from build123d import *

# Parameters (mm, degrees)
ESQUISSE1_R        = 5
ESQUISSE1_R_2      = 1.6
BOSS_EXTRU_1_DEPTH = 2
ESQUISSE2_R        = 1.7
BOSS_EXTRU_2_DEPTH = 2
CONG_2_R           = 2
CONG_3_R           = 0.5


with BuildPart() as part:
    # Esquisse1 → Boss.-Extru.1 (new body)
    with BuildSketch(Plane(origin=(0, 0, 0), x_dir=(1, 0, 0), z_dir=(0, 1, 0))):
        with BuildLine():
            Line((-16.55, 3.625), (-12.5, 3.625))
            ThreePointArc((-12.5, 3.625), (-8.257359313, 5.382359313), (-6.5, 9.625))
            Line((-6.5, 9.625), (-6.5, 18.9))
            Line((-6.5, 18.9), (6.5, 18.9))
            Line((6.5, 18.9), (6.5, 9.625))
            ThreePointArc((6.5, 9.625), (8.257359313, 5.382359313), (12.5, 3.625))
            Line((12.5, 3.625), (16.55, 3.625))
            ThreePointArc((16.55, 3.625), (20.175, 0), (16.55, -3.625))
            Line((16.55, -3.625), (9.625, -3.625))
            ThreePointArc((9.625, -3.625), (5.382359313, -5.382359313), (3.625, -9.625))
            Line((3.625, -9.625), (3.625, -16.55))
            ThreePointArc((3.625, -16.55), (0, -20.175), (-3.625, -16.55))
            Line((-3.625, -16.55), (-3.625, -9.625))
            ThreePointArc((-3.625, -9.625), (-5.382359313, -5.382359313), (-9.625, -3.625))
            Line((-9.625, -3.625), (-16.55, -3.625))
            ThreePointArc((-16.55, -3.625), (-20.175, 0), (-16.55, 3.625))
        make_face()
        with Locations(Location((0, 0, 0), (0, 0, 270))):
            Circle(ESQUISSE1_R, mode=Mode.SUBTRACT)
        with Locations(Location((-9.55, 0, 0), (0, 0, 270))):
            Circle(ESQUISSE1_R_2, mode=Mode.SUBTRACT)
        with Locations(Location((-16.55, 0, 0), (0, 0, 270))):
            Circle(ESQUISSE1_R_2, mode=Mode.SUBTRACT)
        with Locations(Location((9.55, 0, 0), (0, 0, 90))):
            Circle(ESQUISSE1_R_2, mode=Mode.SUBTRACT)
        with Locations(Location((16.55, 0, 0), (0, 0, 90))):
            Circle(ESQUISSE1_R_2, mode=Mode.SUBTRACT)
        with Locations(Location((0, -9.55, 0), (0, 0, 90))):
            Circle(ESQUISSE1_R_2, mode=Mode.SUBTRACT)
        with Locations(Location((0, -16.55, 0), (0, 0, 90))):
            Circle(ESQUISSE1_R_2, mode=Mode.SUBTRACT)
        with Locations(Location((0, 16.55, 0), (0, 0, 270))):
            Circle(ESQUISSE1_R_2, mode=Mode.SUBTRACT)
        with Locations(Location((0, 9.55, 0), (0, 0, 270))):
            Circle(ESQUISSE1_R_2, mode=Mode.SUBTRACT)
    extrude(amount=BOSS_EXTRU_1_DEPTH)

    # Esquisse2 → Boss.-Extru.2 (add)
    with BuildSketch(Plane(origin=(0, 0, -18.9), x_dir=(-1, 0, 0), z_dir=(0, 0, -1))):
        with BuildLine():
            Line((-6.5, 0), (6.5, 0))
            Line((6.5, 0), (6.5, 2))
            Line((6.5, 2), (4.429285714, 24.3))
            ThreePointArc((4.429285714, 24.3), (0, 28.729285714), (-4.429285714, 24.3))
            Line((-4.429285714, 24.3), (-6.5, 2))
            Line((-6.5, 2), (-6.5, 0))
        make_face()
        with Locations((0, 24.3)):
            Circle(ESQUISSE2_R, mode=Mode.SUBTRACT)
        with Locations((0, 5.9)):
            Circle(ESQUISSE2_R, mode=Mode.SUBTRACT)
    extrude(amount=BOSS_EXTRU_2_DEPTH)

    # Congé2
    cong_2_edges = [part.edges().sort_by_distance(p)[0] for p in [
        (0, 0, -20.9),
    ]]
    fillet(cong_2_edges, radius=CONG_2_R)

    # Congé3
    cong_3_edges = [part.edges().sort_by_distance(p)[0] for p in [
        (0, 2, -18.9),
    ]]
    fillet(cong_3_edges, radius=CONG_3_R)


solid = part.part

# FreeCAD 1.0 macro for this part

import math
import FreeCAD as App
import Part
import Sketcher
from FreeCAD import Vector
Q = App.Units.Quantity


def edges_at(feature, points):
    """Names of the edges that pass closest to the given points."""
    edges = feature.Shape.Edges
    near = lambda p: min(range(len(edges)), key=lambda i: edges[i].distToShape(Part.Vertex(*p))[0])
    return sorted({f"Edge{near(p) + 1}" for p in points})

doc = App.newDocument("Part")
body = doc.addObject("PartDesign::Body", "Body")

# Sketch on XZ plane
sketch1 = body.newObject("Sketcher::SketchObject", "Sketch")
sketch1.AttachmentSupport = (doc.getObject("XZ_Plane"), [""])
sketch1.MapMode = "FlatFace"
sketch1.addGeometry([
    Part.LineSegment(Vector(-12.5, -3.625, 0), Vector(-16.55, -3.625, 0)),  # 0
    Part.ArcOfCircle(Part.Circle(Vector(-16.55, 0, 0), Vector(0, 0, 1), 3.625), math.radians(90), math.radians(270)),  # 1
    Part.LineSegment(Vector(-16.55, 3.625, 0), Vector(-9.625, 3.625, 0)),  # 2
    Part.ArcOfCircle(Part.Circle(Vector(-9.625, 9.625, 0), Vector(0, 0, 1), 6), math.radians(-90), math.radians(0)),  # 3
    Part.LineSegment(Vector(-3.625, 9.625, 0), Vector(-3.625, 16.55, 0)),  # 4
    Part.ArcOfCircle(Part.Circle(Vector(0, 16.55, 0), Vector(0, 0, 1), 3.625), math.radians(0), math.radians(180)),  # 5
    Part.LineSegment(Vector(3.625, 16.55, 0), Vector(3.625, 9.625, 0)),  # 6
    Part.ArcOfCircle(Part.Circle(Vector(9.625, 9.625, 0), Vector(0, 0, 1), 6), math.radians(180), math.radians(270)),  # 7
    Part.LineSegment(Vector(9.625, 3.625, 0), Vector(16.55, 3.625, 0)),  # 8
    Part.ArcOfCircle(Part.Circle(Vector(16.55, 0, 0), Vector(0, 0, 1), 3.625), math.radians(-90), math.radians(90)),  # 9
    Part.LineSegment(Vector(16.55, -3.625, 0), Vector(12.5, -3.625, 0)),  # 10
    Part.ArcOfCircle(Part.Circle(Vector(12.5, -9.625, 0), Vector(0, 0, 1), 6), math.radians(90), math.radians(180)),  # 11
    Part.LineSegment(Vector(6.5, -9.625, 0), Vector(6.5, -18.9, 0)),  # 12
    Part.LineSegment(Vector(6.5, -18.9, 0), Vector(-6.5, -18.9, 0)),  # 13
    Part.LineSegment(Vector(-6.5, -18.9, 0), Vector(-6.5, -9.625, 0)),  # 14
    Part.ArcOfCircle(Part.Circle(Vector(-12.5, -9.625, 0), Vector(0, 0, 1), 6), math.radians(0), math.radians(90)),  # 15
    Part.Circle(Vector(0, 16.55, 0), Vector(0, 0, 1), 1.6),  # 16
    Part.Circle(Vector(0, 9.55, 0), Vector(0, 0, 1), 1.6),  # 17
    Part.Circle(Vector(16.55, 0, 0), Vector(0, 0, 1), 1.6),  # 18
    Part.Circle(Vector(9.55, 0, 0), Vector(0, 0, 1), 1.6),  # 19
    Part.Circle(Vector(0, 0, 0), Vector(0, 0, 1), 5),  # 20
    Part.Circle(Vector(-9.55, 0, 0), Vector(0, 0, 1), 1.6),  # 21
    Part.Circle(Vector(-16.55, 0, 0), Vector(0, 0, 1), 1.6),  # 22
    Part.Circle(Vector(0, -9.55, 0), Vector(0, 0, 1), 1.6),  # 23
    Part.Circle(Vector(0, -16.55, 0), Vector(0, 0, 1), 1.6),  # 24
], False)
sketch1.addConstraint([
    Sketcher.Constraint("Tangent", 0, 2, 1, 2),
    Sketcher.Constraint("Tangent", 1, 1, 2, 1),
    Sketcher.Constraint("Tangent", 2, 2, 3, 1),
    Sketcher.Constraint("Tangent", 3, 2, 4, 1),
    Sketcher.Constraint("Tangent", 4, 2, 5, 2),
    Sketcher.Constraint("Tangent", 5, 1, 6, 1),
    Sketcher.Constraint("Tangent", 6, 2, 7, 1),
    Sketcher.Constraint("Tangent", 7, 2, 8, 1),
    Sketcher.Constraint("Tangent", 8, 2, 9, 2),
    Sketcher.Constraint("Tangent", 9, 1, 10, 1),
    Sketcher.Constraint("Tangent", 10, 2, 11, 1),
    Sketcher.Constraint("Tangent", 11, 2, 12, 1),
    Sketcher.Constraint("Coincident", 12, 2, 13, 1),
    Sketcher.Constraint("Coincident", 13, 2, 14, 1),
    Sketcher.Constraint("Tangent", 14, 2, 15, 1),
    Sketcher.Constraint("Tangent", 15, 2, 0, 1),
    Sketcher.Constraint("Horizontal", 0),
    Sketcher.Constraint("Horizontal", 2),
    Sketcher.Constraint("Vertical", 4),
    Sketcher.Constraint("Vertical", 6),
    Sketcher.Constraint("Horizontal", 8),
    Sketcher.Constraint("Horizontal", 10),
    Sketcher.Constraint("Vertical", 12),
    Sketcher.Constraint("Horizontal", 13),
    Sketcher.Constraint("Vertical", 14),
    Sketcher.Constraint("Coincident", 20, 3, -1, 1),
    Sketcher.Constraint("Coincident", 16, 3, 5, 3),
    Sketcher.Constraint("Coincident", 18, 3, 9, 3),
    Sketcher.Constraint("Coincident", 22, 3, 1, 3),
    Sketcher.Constraint("Equal", 1, 5),
    Sketcher.Constraint("Equal", 3, 7),
    Sketcher.Constraint("Equal", 5, 9),
    Sketcher.Constraint("Equal", 7, 11),
    Sketcher.Constraint("Equal", 11, 15),
    Sketcher.Constraint("Equal", 16, 17),
    Sketcher.Constraint("Equal", 17, 18),
    Sketcher.Constraint("Equal", 18, 19),
    Sketcher.Constraint("Equal", 19, 21),
    Sketcher.Constraint("Equal", 21, 22),
    Sketcher.Constraint("Equal", 22, 23),
    Sketcher.Constraint("Equal", 23, 24),
    Sketcher.Constraint("Symmetric", 1, 3, 9, 3, -1, 1),
    Sketcher.Constraint("Symmetric", 19, 3, 21, 3, -1, 1),
    Sketcher.Constraint("Symmetric", 17, 3, 23, 3, -1, 1),
    Sketcher.Constraint("Symmetric", 5, 3, 24, 3, -1, 1),
    Sketcher.Constraint("Symmetric", 3, 3, 7, 3, -2),
    Sketcher.Constraint("PointOnObject", 17, 3, -2),
    Sketcher.Constraint("PointOnObject", 19, 3, -1),
    Sketcher.Constraint("Equal", 0, 10),
    Sketcher.Constraint("Equal", 8, 4),
    Sketcher.Constraint("Diameter", 20, Q("10 mm")),
    Sketcher.Constraint("Radius", 3, Q("6 mm")),
    Sketcher.Constraint("Diameter", 16, Q("3.2 mm")),
    Sketcher.Constraint("DistanceX", 13, 2, 13, 1, Q("13 mm")),
    Sketcher.Constraint("Radius", 1, Q("3.625 mm")),
    Sketcher.Constraint("DistanceY", 17, 3, 5, 3, Q("7 mm")),
    Sketcher.Constraint("DistanceX", 19, 3, 9, 3, Q("7 mm")),
    Sketcher.Constraint("DistanceX", 0, 2, 0, 1, Q("4.05 mm")),
    Sketcher.Constraint("DistanceY", 12, 2, -1, 1, Q("18.9 mm")),
])
pad1 = body.newObject("PartDesign::Pad", "Pad")
pad1.Profile = sketch1
pad1.Length = 2
pad1.Reversed = True

# Sketch on XY plane
sketch2 = body.newObject("Sketcher::SketchObject", "Sketch001")
sketch2.AttachmentSupport = (doc.getObject("XY_Plane"), [""])
sketch2.MapMode = "FlatFace"
sketch2.AttachmentOffset = App.Placement(Vector(0, 0, -18.9), App.Rotation())
sketch2.addGeometry([
    Part.LineSegment(Vector(6.5, 0, 0), Vector(-6.5, 0, 0)),  # 0
    Part.LineSegment(Vector(-6.5, 0, 0), Vector(-6.5, 2, 0)),  # 1
    Part.LineSegment(Vector(-6.5, 2, 0), Vector(-4.429286, 24.3, 0)),  # 2
    Part.ArcOfCircle(Part.Circle(Vector(0, 24.3, 0), Vector(0, 0, 1), 4.429286), math.radians(0), math.radians(180)),  # 3
    Part.LineSegment(Vector(4.429286, 24.3, 0), Vector(6.5, 2, 0)),  # 4
    Part.LineSegment(Vector(6.5, 2, 0), Vector(6.5, 0, 0)),  # 5
    Part.Circle(Vector(0, 5.9, 0), Vector(0, 0, 1), 1.7),  # 6
    Part.Circle(Vector(0, 24.3, 0), Vector(0, 0, 1), 1.7),  # 7
], False)
sketch2.addConstraint([
    Sketcher.Constraint("Coincident", 0, 2, 1, 1),
    Sketcher.Constraint("Coincident", 1, 2, 2, 1),
    Sketcher.Constraint("Coincident", 2, 2, 3, 2),
    Sketcher.Constraint("Coincident", 3, 1, 4, 1),
    Sketcher.Constraint("Coincident", 4, 2, 5, 1),
    Sketcher.Constraint("Coincident", 5, 2, 0, 1),
    Sketcher.Constraint("Horizontal", 0),
    Sketcher.Constraint("Vertical", 1),
    Sketcher.Constraint("Vertical", 5),
    Sketcher.Constraint("Coincident", 7, 3, 3, 3),
    Sketcher.Constraint("Equal", 6, 7),
    Sketcher.Constraint("Symmetric", 0, 2, 5, 2, -1, 1),
    Sketcher.Constraint("Symmetric", 2, 2, 3, 1, -2),
    Sketcher.Constraint("PointOnObject", 6, 3, -2),
    Sketcher.Constraint("Horizontal", 7, 3, 2, 2),
    Sketcher.Constraint("Horizontal", 1, 2, 4, 2),
    Sketcher.Constraint("Diameter", 6, Q("3.4 mm")),
    Sketcher.Constraint("DistanceX", 0, 2, 0, 1, Q("13 mm")),
    Sketcher.Constraint("DistanceY", 1, 1, 1, 2, Q("2 mm")),
    Sketcher.Constraint("DistanceY", -1, 1, 3, 3, Q("24.3 mm")),
    Sketcher.Constraint("DistanceY", -1, 1, 6, 3, Q("5.9 mm")),
    Sketcher.Constraint("Radius", 3, Q("4.429286 mm")),
])
pad2 = body.newObject("PartDesign::Pad", "Pad001")
pad2.Profile = sketch2
pad2.Length = 2
pad2.Reversed = True
doc.recompute()

fillet = body.newObject("PartDesign::Fillet", "Fillet")
fillet.Base = (pad2, edges_at(pad2, [(0, 0, -20.9)]))
fillet.Radius = 2
doc.recompute()

fillet2 = body.newObject("PartDesign::Fillet", "Fillet001")
fillet2.Base = (fillet, edges_at(fillet, [(0, 2, -18.9)]))
fillet2.Radius = 0.5

doc.recompute()
